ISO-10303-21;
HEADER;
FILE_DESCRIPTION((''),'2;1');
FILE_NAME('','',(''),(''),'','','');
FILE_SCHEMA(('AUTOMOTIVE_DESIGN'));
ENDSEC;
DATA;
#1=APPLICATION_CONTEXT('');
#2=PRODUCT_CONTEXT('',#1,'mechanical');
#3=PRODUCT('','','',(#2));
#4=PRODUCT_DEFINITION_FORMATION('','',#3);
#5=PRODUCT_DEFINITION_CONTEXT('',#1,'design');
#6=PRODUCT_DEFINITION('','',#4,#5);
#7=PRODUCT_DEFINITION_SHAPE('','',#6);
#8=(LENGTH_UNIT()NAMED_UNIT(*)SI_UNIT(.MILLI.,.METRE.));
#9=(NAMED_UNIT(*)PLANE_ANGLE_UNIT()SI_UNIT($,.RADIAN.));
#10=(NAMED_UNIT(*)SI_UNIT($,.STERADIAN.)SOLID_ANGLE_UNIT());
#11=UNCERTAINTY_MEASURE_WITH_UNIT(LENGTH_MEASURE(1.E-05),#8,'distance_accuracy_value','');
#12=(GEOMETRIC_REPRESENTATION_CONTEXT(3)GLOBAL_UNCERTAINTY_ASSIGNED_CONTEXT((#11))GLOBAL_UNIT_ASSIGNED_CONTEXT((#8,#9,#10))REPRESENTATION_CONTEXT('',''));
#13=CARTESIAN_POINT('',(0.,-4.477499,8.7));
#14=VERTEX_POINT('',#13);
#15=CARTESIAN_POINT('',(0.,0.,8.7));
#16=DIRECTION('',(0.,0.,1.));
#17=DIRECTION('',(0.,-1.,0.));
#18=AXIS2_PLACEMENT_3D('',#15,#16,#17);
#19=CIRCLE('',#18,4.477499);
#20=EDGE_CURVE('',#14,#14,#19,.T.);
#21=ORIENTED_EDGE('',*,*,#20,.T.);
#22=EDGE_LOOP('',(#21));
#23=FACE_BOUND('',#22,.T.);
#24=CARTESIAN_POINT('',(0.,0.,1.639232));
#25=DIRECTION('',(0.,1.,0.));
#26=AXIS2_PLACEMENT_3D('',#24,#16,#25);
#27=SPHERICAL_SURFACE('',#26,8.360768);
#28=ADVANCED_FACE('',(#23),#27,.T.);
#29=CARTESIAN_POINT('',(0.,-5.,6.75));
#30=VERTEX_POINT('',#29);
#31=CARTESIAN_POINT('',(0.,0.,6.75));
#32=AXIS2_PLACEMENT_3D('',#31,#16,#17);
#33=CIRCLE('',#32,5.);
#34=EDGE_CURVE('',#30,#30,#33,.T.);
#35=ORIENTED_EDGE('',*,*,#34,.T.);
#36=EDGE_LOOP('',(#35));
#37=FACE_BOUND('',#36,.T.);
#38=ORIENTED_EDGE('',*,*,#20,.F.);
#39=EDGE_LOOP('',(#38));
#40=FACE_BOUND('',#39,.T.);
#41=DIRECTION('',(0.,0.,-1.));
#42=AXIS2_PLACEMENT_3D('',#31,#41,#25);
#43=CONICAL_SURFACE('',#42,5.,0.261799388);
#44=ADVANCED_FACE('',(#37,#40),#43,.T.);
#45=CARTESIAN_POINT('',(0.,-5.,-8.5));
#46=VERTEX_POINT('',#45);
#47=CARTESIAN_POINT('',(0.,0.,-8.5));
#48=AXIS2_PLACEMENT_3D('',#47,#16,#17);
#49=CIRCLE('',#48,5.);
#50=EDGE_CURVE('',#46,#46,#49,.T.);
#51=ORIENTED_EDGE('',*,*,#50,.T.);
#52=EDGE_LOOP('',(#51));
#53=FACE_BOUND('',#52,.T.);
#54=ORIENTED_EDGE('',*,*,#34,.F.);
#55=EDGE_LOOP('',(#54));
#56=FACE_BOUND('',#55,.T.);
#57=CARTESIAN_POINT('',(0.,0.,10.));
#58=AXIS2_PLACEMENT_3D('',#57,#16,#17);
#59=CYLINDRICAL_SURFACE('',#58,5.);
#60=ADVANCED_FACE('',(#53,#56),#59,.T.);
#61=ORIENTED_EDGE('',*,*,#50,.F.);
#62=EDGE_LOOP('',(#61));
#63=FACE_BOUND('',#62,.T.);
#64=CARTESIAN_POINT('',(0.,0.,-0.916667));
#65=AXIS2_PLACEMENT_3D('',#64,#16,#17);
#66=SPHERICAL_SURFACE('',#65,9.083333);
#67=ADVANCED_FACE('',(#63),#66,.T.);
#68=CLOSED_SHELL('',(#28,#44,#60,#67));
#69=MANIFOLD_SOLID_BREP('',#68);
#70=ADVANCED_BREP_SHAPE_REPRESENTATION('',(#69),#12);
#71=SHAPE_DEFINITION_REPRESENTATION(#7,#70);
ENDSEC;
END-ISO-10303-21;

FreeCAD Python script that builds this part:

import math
import FreeCAD as App
import Part
import Sketcher
from FreeCAD import Vector
Q = App.Units.Quantity

doc = App.newDocument("Part")
body = doc.addObject("PartDesign::Body", "Body")

sketch1 = body.newObject("Sketcher::SketchObject", "Sketch")
sketch1.AttachmentSupport = (doc.getObject("YZ_Plane"), [""])
sketch1.MapMode = "FlatFace"
sketch1.addGeometry([
    Part.LineSegment(Vector(0, 10, 0), Vector(0, -10, 0)),
    Part.ArcOfCircle(Part.Circle(Vector(0, -0.9, 0), Vector(0, 0, 1), 9.1), math.radians(-90), math.radians(-57)),
    Part.LineSegment(Vector(5, -8.5, 0), Vector(5, 6.8, 0)),
    Part.LineSegment(Vector(5, 6.8, 0), Vector(4.5, 8.7, 0)),
    Part.ArcOfCircle(Part.Circle(Vector(0, 1.6, 0), Vector(0, 0, 1), 8.4), math.radians(58), math.radians(90)),
], False)
sketch1.addConstraint([
    Sketcher.Constraint("Coincident", 0, 2, 1, 1),
    Sketcher.Constraint("Coincident", 1, 2, 2, 1),
    Sketcher.Constraint("Coincident", 2, 2, 3, 1),
    Sketcher.Constraint("Coincident", 3, 2, 4, 1),
    Sketcher.Constraint("Coincident", 4, 2, 0, 1),
    Sketcher.Constraint("Vertical", 0),
    Sketcher.Constraint("Vertical", 2),
    Sketcher.Constraint("Symmetric", 0, 2, 4, 2, -1, 1),
    Sketcher.Constraint("PointOnObject", 1, 3, -2),
    Sketcher.Constraint("PointOnObject", 4, 3, -2),
    Sketcher.Constraint("DistanceY", 0, 2, 0, 1, 20.0),
    Sketcher.Constraint("Angle", 3, Q("105 deg")),
    Sketcher.Constraint("DistanceX", -1, 1, 1, 2, 5.0),
    Sketcher.Constraint("DistanceY", 2, 1, 2, 2, 15.25),
    Sketcher.Constraint("DistanceY", 1, 2, -1, 1, 8.5),
    Sketcher.Constraint("DistanceY", -1, 1, 3, 2, 8.7),
])
revolution = body.newObject("PartDesign::Revolution", "Revolution")
revolution.Profile = sketch1
revolution.ReferenceAxis = (sketch1, ["V_Axis"])
revolution.Angle = 360

doc.recompute()
